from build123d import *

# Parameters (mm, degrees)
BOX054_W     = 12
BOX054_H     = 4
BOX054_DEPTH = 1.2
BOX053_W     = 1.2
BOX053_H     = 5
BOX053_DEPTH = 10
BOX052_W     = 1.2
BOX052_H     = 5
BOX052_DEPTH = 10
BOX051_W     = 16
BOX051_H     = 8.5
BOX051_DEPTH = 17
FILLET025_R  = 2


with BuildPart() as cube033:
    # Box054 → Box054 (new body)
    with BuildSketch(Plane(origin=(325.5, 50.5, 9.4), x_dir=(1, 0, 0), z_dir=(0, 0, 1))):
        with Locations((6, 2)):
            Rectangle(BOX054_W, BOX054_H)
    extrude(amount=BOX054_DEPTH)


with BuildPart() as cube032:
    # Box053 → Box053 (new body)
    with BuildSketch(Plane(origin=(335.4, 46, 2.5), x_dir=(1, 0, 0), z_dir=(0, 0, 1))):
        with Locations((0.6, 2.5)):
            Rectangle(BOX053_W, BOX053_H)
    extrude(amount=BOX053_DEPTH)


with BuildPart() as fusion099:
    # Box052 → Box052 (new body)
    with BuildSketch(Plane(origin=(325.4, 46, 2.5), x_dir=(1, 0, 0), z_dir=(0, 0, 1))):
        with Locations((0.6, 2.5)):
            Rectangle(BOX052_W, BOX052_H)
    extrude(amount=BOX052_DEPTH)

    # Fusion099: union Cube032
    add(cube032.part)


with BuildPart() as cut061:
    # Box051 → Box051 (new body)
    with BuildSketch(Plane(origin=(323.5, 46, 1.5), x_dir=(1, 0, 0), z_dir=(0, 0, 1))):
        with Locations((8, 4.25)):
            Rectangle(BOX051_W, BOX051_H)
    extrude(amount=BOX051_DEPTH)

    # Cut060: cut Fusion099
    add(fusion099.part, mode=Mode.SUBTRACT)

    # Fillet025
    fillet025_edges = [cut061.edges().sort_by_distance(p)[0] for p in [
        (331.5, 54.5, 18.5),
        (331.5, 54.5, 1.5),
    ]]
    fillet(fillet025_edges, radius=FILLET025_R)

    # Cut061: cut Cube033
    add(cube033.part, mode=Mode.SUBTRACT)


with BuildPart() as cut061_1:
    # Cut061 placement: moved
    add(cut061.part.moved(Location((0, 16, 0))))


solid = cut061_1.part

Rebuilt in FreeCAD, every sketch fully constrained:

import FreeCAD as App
import Part
import Sketcher
Q = App.Units.Quantity


def edges_at(feature, points):
    """Names of the edges that pass closest to the given points."""
    edges = feature.Shape.Edges
    near = lambda p: min(range(len(edges)), key=lambda i: edges[i].distToShape(Part.Vertex(*p))[0])
    return sorted({f"Edge{near(p) + 1}" for p in points})

doc = App.newDocument("Part")
body = doc.addObject("PartDesign::Body", "Body")

sketch1 = body.newObject("Sketcher::SketchObject", "Sketch")
sketch1.AttachmentSupport = (doc.getObject("XY_Plane"), [""])
sketch1.MapMode = "FlatFace"
sketch1.AttachmentOffset = App.Placement(App.Vector(0, 0, 9.4), App.Rotation())
sketch1.addGeometry(Part.LineSegment(App.Vector(325.5, 54.5, 0), App.Vector(325.5, 50.5, 0)), False)
sketch1.addGeometry(Part.LineSegment(App.Vector(325.5, 50.5, 0), App.Vector(337.5, 50.5, 0)), False)
sketch1.addGeometry(Part.LineSegment(App.Vector(337.5, 50.5, 0), App.Vector(337.5, 54.5, 0)), False)
sketch1.addGeometry(Part.LineSegment(App.Vector(337.5, 54.5, 0), App.Vector(325.5, 54.5, 0)), False)
sketch1.addConstraint(Sketcher.Constraint("Coincident", 0, 2, 1, 1))
sketch1.addConstraint(Sketcher.Constraint("Coincident", 1, 2, 2, 1))
sketch1.addConstraint(Sketcher.Constraint("Coincident", 2, 2, 3, 1))
sketch1.addConstraint(Sketcher.Constraint("Coincident", 3, 2, 0, 1))
sketch1.addConstraint(Sketcher.Constraint("Vertical", 0))
sketch1.addConstraint(Sketcher.Constraint("Horizontal", 1))
sketch1.addConstraint(Sketcher.Constraint("Vertical", 2))
sketch1.addConstraint(Sketcher.Constraint("Horizontal", 3))
sketch1.addConstraint(Sketcher.Constraint("DistanceX", 1, 1, 1, 2, Q("12 mm")))
sketch1.addConstraint(Sketcher.Constraint("DistanceY", 0, 2, 0, 1, Q("4 mm")))
sketch1.addConstraint(Sketcher.Constraint("DistanceX", -1, 1, 0, 2, Q("325.5 mm")))
sketch1.addConstraint(Sketcher.Constraint("DistanceY", -1, 1, 0, 2, Q("50.5 mm")))
pad1 = body.newObject("PartDesign::Pad", "Pad")
pad1.Profile = sketch1
pad1.Length = 1.2
body2 = doc.addObject("PartDesign::Body", "Body001")

sketch2 = body2.newObject("Sketcher::SketchObject", "Sketch001")
sketch2.AttachmentSupport = (doc.getObject("XY_Plane001"), [""])
sketch2.MapMode = "FlatFace"
sketch2.AttachmentOffset = App.Placement(App.Vector(0, 0, 2.5), App.Rotation())
sketch2.addGeometry(Part.LineSegment(App.Vector(335.4, 51, 0), App.Vector(335.4, 46, 0)), False)
sketch2.addGeometry(Part.LineSegment(App.Vector(335.4, 46, 0), App.Vector(336.6, 46, 0)), False)
sketch2.addGeometry(Part.LineSegment(App.Vector(336.6, 46, 0), App.Vector(336.6, 51, 0)), False)
sketch2.addGeometry(Part.LineSegment(App.Vector(336.6, 51, 0), App.Vector(335.4, 51, 0)), False)
sketch2.addConstraint(Sketcher.Constraint("Coincident", 0, 2, 1, 1))
sketch2.addConstraint(Sketcher.Constraint("Coincident", 1, 2, 2, 1))
sketch2.addConstraint(Sketcher.Constraint("Coincident", 2, 2, 3, 1))
sketch2.addConstraint(Sketcher.Constraint("Coincident", 3, 2, 0, 1))
sketch2.addConstraint(Sketcher.Constraint("Vertical", 0))
sketch2.addConstraint(Sketcher.Constraint("Horizontal", 1))
sketch2.addConstraint(Sketcher.Constraint("Vertical", 2))
sketch2.addConstraint(Sketcher.Constraint("Horizontal", 3))
sketch2.addConstraint(Sketcher.Constraint("DistanceY", 0, 2, 0, 1, Q("5 mm")))
sketch2.addConstraint(Sketcher.Constraint("DistanceX", 1, 1, 1, 2, Q("1.2 mm")))
sketch2.addConstraint(Sketcher.Constraint("DistanceY", -1, 1, 0, 2, Q("46 mm")))
sketch2.addConstraint(Sketcher.Constraint("DistanceX", -1, 1, 0, 2, Q("335.4 mm")))
pad2 = body2.newObject("PartDesign::Pad", "Pad001")
pad2.Profile = sketch2
pad2.Length = 10
body3 = doc.addObject("PartDesign::Body", "Body002")
body3.AllowCompound = True

sketch3 = body3.newObject("Sketcher::SketchObject", "Sketch002")
sketch3.AttachmentSupport = (doc.getObject("XY_Plane002"), [""])
sketch3.MapMode = "FlatFace"
sketch3.AttachmentOffset = App.Placement(App.Vector(0, 0, 2.5), App.Rotation())
sketch3.addGeometry(Part.LineSegment(App.Vector(325.4, 51, 0), App.Vector(325.4, 46, 0)), False)
sketch3.addGeometry(Part.LineSegment(App.Vector(325.4, 46, 0), App.Vector(326.6, 46, 0)), False)
sketch3.addGeometry(Part.LineSegment(App.Vector(326.6, 46, 0), App.Vector(326.6, 51, 0)), False)
sketch3.addGeometry(Part.LineSegment(App.Vector(326.6, 51, 0), App.Vector(325.4, 51, 0)), False)
sketch3.addConstraint(Sketcher.Constraint("Coincident", 0, 2, 1, 1))
sketch3.addConstraint(Sketcher.Constraint("Coincident", 1, 2, 2, 1))
sketch3.addConstraint(Sketcher.Constraint("Coincident", 2, 2, 3, 1))
sketch3.addConstraint(Sketcher.Constraint("Coincident", 3, 2, 0, 1))
sketch3.addConstraint(Sketcher.Constraint("Vertical", 0))
sketch3.addConstraint(Sketcher.Constraint("Horizontal", 1))
sketch3.addConstraint(Sketcher.Constraint("Vertical", 2))
sketch3.addConstraint(Sketcher.Constraint("Horizontal", 3))
sketch3.addConstraint(Sketcher.Constraint("DistanceY", 0, 2, 0, 1, Q("5 mm")))
sketch3.addConstraint(Sketcher.Constraint("DistanceX", 1, 1, 1, 2, Q("1.2 mm")))
sketch3.addConstraint(Sketcher.Constraint("DistanceY", -1, 1, 0, 2, Q("46 mm")))
sketch3.addConstraint(Sketcher.Constraint("DistanceX", -1, 1, 0, 2, Q("325.4 mm")))
pad3 = body3.newObject("PartDesign::Pad", "Pad002")
pad3.Profile = sketch3
pad3.Length = 10
doc.recompute()

boolean = body3.newObject("PartDesign::Boolean", "Boolean")
boolean.Type = "Fuse"
boolean.addObjects([body2])
body4 = doc.addObject("PartDesign::Body", "Body003")

sketch4 = body4.newObject("Sketcher::SketchObject", "Sketch003")
sketch4.AttachmentSupport = (doc.getObject("XY_Plane003"), [""])
sketch4.MapMode = "FlatFace"
sketch4.AttachmentOffset = App.Placement(App.Vector(0, 0, 1.5), App.Rotation())
sketch4.addGeometry(Part.LineSegment(App.Vector(324, 54, 0), App.Vector(324, 46, 0)), False)
sketch4.addGeometry(Part.LineSegment(App.Vector(324, 46, 0), App.Vector(340, 46, 0)), False)
sketch4.addGeometry(Part.LineSegment(App.Vector(340, 46, 0), App.Vector(340, 54, 0)), False)
sketch4.addGeometry(Part.LineSegment(App.Vector(340, 54, 0), App.Vector(324, 54, 0)), False)
sketch4.addConstraint(Sketcher.Constraint("Coincident", 0, 2, 1, 1))
sketch4.addConstraint(Sketcher.Constraint("Coincident", 1, 2, 2, 1))
sketch4.addConstraint(Sketcher.Constraint("Coincident", 2, 2, 3, 1))
sketch4.addConstraint(Sketcher.Constraint("Coincident", 3, 2, 0, 1))
sketch4.addConstraint(Sketcher.Constraint("Vertical", 0))
sketch4.addConstraint(Sketcher.Constraint("Horizontal", 1))
sketch4.addConstraint(Sketcher.Constraint("Vertical", 2))
sketch4.addConstraint(Sketcher.Constraint("Horizontal", 3))
sketch4.addConstraint(Sketcher.Constraint("DistanceX", 1, 1, 1, 2, Q("16 mm")))
sketch4.addConstraint(Sketcher.Constraint("DistanceY", 0, 2, 0, 1, Q("8.5 mm")))
sketch4.addConstraint(Sketcher.Constraint("DistanceY", -1, 1, 0, 2, Q("46 mm")))
sketch4.addConstraint(Sketcher.Constraint("DistanceX", -1, 1, 0, 2, Q("323.5 mm")))
pad4 = body4.newObject("PartDesign::Pad", "Pad003")
pad4.Profile = sketch4
pad4.Length = 17
doc.recompute()

boolean2 = body4.newObject("PartDesign::Boolean", "Boolean001")
boolean2.Type = "Cut"
boolean2.addObjects([body3])
doc.recompute()

fillet = body4.newObject("PartDesign::Fillet", "Fillet")
fillet.Base = (boolean2, edges_at(boolean2, [(331.5, 54.5, 18.5), (331.5, 54.5, 1.5)]))
fillet.Radius = 2
doc.recompute()

boolean3 = body4.newObject("PartDesign::Boolean", "Boolean002")
boolean3.Type = "Cut"
boolean3.addObjects([body])
body5 = doc.addObject("PartDesign::Body", "Body004")
doc.recompute()

body4.Placement = App.Placement(App.Vector(0, 16, 0), App.Rotation(App.Vector(0, 0, 1), 0))
boolean4 = body5.newObject("PartDesign::Boolean", "Boolean003")
boolean4.Type = "Fuse"
boolean4.addObjects([body4])

doc.recompute()
